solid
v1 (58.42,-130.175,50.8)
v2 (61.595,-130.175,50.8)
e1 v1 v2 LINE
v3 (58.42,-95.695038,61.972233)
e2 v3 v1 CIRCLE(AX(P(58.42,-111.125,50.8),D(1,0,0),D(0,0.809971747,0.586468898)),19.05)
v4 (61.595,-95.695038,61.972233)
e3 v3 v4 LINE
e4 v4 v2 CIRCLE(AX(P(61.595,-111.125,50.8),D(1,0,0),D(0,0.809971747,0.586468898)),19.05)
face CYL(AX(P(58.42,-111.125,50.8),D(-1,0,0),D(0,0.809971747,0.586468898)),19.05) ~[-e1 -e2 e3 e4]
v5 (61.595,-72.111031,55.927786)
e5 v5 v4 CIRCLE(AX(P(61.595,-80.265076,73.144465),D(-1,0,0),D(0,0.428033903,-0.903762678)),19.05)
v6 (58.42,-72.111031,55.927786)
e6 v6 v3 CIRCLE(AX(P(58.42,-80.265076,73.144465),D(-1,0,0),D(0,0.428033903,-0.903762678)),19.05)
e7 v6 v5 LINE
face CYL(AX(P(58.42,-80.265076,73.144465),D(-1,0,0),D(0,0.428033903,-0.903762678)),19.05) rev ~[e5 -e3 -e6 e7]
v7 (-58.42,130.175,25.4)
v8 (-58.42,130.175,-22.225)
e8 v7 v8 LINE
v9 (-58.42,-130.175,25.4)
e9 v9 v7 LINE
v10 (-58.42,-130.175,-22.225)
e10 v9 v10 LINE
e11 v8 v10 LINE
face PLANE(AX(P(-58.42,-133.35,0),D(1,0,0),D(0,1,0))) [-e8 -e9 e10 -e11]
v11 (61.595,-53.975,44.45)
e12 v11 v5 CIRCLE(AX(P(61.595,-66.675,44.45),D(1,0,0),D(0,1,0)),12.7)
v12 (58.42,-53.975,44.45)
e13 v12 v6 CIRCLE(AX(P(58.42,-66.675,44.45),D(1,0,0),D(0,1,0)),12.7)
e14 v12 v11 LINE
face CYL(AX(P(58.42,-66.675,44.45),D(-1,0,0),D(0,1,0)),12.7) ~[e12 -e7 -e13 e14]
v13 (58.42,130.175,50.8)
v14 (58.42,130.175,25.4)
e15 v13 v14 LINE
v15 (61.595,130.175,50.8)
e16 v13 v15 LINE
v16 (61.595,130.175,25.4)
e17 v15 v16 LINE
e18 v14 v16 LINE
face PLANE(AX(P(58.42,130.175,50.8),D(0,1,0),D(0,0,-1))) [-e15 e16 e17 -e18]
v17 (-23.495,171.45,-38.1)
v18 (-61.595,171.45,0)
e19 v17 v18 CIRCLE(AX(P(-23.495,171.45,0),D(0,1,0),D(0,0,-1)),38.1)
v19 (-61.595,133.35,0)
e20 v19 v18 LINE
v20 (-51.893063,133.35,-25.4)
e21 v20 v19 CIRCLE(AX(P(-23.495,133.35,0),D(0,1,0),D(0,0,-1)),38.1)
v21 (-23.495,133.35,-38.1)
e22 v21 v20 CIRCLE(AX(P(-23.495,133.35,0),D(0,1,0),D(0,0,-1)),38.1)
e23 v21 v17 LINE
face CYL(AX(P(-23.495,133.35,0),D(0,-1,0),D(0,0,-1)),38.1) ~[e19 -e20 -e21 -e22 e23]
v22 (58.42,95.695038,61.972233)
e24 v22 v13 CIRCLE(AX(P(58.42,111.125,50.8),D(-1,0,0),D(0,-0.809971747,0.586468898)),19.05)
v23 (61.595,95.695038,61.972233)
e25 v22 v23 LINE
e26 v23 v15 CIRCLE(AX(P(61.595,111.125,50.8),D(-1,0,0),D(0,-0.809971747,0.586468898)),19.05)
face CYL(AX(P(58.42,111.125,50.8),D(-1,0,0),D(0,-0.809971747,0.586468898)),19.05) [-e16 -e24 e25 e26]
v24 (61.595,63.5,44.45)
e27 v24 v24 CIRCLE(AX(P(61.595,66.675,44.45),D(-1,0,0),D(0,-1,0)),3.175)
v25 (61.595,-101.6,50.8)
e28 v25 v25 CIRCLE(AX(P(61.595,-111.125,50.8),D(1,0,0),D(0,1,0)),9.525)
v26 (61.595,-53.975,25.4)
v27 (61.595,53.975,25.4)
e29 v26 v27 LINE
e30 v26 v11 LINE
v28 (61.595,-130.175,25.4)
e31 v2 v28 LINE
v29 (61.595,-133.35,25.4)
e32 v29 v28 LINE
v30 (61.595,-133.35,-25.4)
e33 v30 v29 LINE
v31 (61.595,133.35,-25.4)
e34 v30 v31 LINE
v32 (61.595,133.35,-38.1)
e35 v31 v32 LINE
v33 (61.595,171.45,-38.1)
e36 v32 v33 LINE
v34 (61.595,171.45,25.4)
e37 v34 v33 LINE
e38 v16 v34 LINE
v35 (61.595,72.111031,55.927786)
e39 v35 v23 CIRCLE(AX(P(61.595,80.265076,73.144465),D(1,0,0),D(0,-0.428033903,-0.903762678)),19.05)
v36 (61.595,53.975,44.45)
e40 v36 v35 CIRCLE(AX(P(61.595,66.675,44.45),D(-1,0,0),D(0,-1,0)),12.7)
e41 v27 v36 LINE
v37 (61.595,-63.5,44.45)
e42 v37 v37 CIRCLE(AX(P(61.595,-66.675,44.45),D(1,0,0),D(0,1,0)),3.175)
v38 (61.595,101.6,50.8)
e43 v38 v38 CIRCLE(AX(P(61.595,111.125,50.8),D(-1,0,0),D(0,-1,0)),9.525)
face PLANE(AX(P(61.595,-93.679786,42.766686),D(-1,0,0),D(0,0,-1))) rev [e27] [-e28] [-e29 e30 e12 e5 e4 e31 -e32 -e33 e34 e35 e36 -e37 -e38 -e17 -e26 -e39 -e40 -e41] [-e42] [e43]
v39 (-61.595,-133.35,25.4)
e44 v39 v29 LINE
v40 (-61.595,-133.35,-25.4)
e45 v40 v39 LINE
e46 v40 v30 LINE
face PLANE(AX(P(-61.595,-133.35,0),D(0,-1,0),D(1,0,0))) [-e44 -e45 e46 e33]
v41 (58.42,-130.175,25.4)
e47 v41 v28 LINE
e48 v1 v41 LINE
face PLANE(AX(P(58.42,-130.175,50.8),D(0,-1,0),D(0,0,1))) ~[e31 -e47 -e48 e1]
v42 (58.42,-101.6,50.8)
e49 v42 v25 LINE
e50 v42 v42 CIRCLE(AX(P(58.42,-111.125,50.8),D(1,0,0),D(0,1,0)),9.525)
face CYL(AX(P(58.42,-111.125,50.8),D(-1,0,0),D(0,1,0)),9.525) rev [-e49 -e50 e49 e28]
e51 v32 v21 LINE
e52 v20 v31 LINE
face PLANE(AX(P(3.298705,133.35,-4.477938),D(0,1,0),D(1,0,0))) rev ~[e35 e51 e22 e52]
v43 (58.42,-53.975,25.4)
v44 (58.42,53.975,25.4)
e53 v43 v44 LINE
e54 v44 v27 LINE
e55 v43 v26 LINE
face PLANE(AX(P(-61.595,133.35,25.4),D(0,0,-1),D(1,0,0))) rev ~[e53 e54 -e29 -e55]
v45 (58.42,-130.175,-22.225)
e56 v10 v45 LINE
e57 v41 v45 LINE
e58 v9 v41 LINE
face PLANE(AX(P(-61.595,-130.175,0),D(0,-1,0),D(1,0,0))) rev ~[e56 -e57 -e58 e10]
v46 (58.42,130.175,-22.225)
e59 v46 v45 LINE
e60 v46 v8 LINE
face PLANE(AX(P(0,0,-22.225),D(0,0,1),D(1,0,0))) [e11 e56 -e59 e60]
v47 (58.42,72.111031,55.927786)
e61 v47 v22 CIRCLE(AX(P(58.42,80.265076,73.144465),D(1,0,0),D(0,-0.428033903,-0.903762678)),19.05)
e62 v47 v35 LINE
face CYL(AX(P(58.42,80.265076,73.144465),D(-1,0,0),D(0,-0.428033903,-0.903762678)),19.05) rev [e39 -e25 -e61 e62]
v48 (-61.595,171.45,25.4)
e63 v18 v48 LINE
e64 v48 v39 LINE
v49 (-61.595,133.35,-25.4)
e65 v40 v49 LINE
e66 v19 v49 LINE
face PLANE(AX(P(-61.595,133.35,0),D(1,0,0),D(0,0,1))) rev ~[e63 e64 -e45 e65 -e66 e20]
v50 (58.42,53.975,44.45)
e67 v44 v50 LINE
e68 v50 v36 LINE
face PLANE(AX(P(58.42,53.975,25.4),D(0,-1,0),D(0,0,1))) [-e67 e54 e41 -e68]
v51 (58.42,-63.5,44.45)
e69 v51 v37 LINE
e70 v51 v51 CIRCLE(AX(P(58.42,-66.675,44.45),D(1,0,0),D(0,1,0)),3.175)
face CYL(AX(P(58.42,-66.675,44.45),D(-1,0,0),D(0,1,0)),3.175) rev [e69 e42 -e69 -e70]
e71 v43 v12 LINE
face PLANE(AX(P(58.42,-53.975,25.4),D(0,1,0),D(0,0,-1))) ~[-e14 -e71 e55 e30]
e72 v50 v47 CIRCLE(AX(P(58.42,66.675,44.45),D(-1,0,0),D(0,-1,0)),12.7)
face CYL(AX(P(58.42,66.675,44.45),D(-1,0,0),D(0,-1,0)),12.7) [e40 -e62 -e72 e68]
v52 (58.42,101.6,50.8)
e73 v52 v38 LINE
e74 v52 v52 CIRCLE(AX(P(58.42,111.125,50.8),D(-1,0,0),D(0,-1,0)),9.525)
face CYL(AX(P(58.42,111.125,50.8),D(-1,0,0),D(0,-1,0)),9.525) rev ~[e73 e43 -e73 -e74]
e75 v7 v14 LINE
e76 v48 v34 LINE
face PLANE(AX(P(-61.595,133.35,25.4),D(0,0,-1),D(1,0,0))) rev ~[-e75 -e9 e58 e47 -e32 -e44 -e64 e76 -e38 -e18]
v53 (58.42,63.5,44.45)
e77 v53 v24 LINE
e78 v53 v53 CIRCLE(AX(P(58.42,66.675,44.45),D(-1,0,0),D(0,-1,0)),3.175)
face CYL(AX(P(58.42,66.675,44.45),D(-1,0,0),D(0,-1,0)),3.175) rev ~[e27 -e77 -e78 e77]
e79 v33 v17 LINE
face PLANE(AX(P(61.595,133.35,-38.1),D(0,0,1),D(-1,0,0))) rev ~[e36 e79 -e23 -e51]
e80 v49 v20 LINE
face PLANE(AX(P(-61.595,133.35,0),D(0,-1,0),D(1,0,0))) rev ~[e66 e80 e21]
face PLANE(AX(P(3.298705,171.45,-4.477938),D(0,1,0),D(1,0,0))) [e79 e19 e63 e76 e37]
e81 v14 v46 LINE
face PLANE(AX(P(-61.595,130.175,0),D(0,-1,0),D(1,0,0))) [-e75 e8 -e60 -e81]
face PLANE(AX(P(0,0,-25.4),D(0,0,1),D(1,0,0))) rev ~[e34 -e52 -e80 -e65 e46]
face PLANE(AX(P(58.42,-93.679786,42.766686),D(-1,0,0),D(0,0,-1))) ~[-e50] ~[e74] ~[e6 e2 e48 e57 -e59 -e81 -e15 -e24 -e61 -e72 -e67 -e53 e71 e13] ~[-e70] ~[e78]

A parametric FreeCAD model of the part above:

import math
import FreeCAD as App
import Part
import Sketcher
Q = App.Units.Quantity


def faces_at(feature, points):
    """Names of the faces that lie closest to the given points."""
    faces = feature.Shape.Faces
    near = lambda p: min(range(len(faces)), key=lambda i: faces[i].distToShape(Part.Vertex(*p))[0])
    return sorted({f"Face{near(p) + 1}" for p in points})


def add_polygon(sketch, points):
    """Adds a closed chain of lines whose ends are joined by coincident constraints."""
    first, n = sketch.GeometryCount, len(points)
    for a, b in zip(points, points[1:] + points[:1]):
        sketch.addGeometry(Part.LineSegment(App.Vector(*a, 0), App.Vector(*b, 0)), False)
    for i in range(n):
        sketch.addConstraint(Sketcher.Constraint("Coincident", first + i, 2, first + (i + 1) % n, 1))

doc = App.newDocument("Part")
params = doc.addObject("Spreadsheet::Sheet", "Params")
for row, (alias, value) in enumerate([
    ("sketch1_height", "10.5 in"),
    ("sketch1_width", "4.85 in"),
    ("pad1_length", "2 in"),
    ("thickness_wall", "0.125 in"),
    ("sketch2_radius", "0.5 in"),
    ("sketch2_diameter", "0.25 in"),
    ("sketch2_diameter2", "0.75 in"),
    ("sketch2_width", "3 in"),
    ("sketch2_height", "1 in"),
    ("pad2_length", "0.125 in"),
    ("sketch3_radius", "1.5 in"),
    ("sketch3_height", "1 in"),
    ("sketch3_width", "4.85 in"),
    ("pad3_length", "1.5 in"),
], start=1):
    params.set(f"A{row}", alias)
    params.set(f"B{row}", "=" + value)
    params.setAlias(f"B{row}", alias)

body = doc.addObject("PartDesign::Body", "Body")

# Sketch on XY plane
sketch1 = body.newObject("Sketcher::SketchObject", "Sketch")
sketch1.AttachmentSupport = (doc.getObject("XY_Plane"), [""])
sketch1.MapMode = "FlatFace"
add_polygon(sketch1, [(-62, 133), (-62, -133), (62, -133), (62, 133)])  # lines 0-3
sketch1.addConstraint(Sketcher.Constraint("Vertical", 0))
sketch1.addConstraint(Sketcher.Constraint("Horizontal", 1))
sketch1.addConstraint(Sketcher.Constraint("Vertical", 2))
sketch1.addConstraint(Sketcher.Constraint("Horizontal", 3))
sketch1.addConstraint(Sketcher.Constraint("Symmetric", 0, 2, 2, 2, -1, 1))
sketch1.addConstraint(Sketcher.Constraint("DistanceY", 0, 2, 0, 1, Q("10.5 in")))
sketch1.addConstraint(Sketcher.Constraint("DistanceX", 1, 1, 1, 2, Q("4.85 in")))
sketch1.setExpression("Constraints[9]", "Params.sketch1_height")
sketch1.setExpression("Constraints[10]", "Params.sketch1_width")
pad1 = body.newObject("PartDesign::Pad", "Pad")
pad1.Profile = sketch1
pad1.setExpression("Length", "Params.pad1_length")
pad1.Midplane = True
doc.recompute()

thickness = body.newObject("PartDesign::Thickness", "Thickness")
thickness.Base = (pad1, faces_at(pad1, [(0, 0, 25.4)]))
thickness.setExpression("Value", "Params.thickness_wall")
thickness.Reversed = True
thickness.Join = "Intersection"

# Sketch on YZ plane
sketch2 = body.newObject("Sketcher::SketchObject", "Sketch001")
sketch2.AttachmentSupport = (doc.getObject("YZ_Plane"), [""])
sketch2.MapMode = "FlatFace"
sketch2.AttachmentOffset = App.Placement(App.Vector(0, 0, 2.3 * 25.4), App.Rotation())
sketch2.addGeometry(Part.LineSegment(App.Vector(130.2, 50.8, 0), App.Vector(130.2, 25.4, 0)), False)
sketch2.addGeometry(Part.LineSegment(App.Vector(130.2, 25.4, 0), App.Vector(54, 25.4, 0)), False)
sketch2.addGeometry(Part.LineSegment(App.Vector(54, 25.4, 0), App.Vector(54, 44.5, 0)), False)
sketch2.addGeometry(Part.ArcOfCircle(Part.Circle(App.Vector(66.7, 44.5, 0), App.Vector(0, 0, 1), 12.7), math.radians(65), math.radians(180)), False)
sketch2.addGeometry(Part.ArcOfCircle(Part.Circle(App.Vector(80.3, 73.1, 0), App.Vector(0, 0, 1), 19), math.radians(-115), math.radians(-36)), False)
sketch2.addGeometry(Part.ArcOfCircle(Part.Circle(App.Vector(111.1, 50.8, 0), App.Vector(0, 0, 1), 19.1), math.radians(0), math.radians(144)), False)
sketch2.addGeometry(Part.Circle(App.Vector(66.7, 44.5, 0), App.Vector(0, 0, 1), 3.2), False)
sketch2.addGeometry(Part.Circle(App.Vector(111.1, 50.8, 0), App.Vector(0, 0, 1), 9.5), False)
sketch2.addConstraint(Sketcher.Constraint("Coincident", 0, 2, 1, 1))
sketch2.addConstraint(Sketcher.Constraint("Coincident", 1, 2, 2, 1))
sketch2.addConstraint(Sketcher.Constraint("Tangent", 2, 2, 3, 2))
sketch2.addConstraint(Sketcher.Constraint("Tangent", 3, 1, 4, 1))
sketch2.addConstraint(Sketcher.Constraint("Tangent", 4, 2, 5, 2))
sketch2.addConstraint(Sketcher.Constraint("Tangent", 5, 1, 0, 1))
sketch2.addConstraint(Sketcher.Constraint("Vertical", 0))
sketch2.addConstraint(Sketcher.Constraint("Horizontal", 1))
sketch2.addConstraint(Sketcher.Constraint("Vertical", 2))
sketch2.addConstraint(Sketcher.Constraint("Coincident", 6, 3, 3, 3))
sketch2.addConstraint(Sketcher.Constraint("Coincident", 7, 3, 5, 3))
sketch2.addConstraint(Sketcher.Constraint("Equal", 4, 5))
sketch2.addConstraint(Sketcher.Constraint("Radius", 3, Q("0.5 in")))
sketch2.addConstraint(Sketcher.Constraint("Diameter", 6, Q("0.25 in")))
sketch2.addConstraint(Sketcher.Constraint("Diameter", 7, Q("0.75 in")))
sketch2.addConstraint(Sketcher.Constraint("DistanceX", 1, 2, 1, 1, Q("3 in")))
sketch2.addConstraint(Sketcher.Constraint("DistanceY", 0, 2, 0, 1, Q("1 in")))
sketch2.addConstraint(Sketcher.Constraint("Radius", 4, Q("0.75 in")))
sketch2.addConstraint(Sketcher.Constraint("DistanceY", -1, 1, 5, 3, Q("2 in")))
sketch2.addConstraint(Sketcher.Constraint("DistanceY", 2, 1, 2, 2, Q("0.75 in")))
sketch2.addConstraint(Sketcher.Constraint("DistanceX", -1, 1, 3, 3, Q("2.625 in")))
sketch2.setExpression("Constraints[12]", "Params.sketch2_radius")
sketch2.setExpression("Constraints[13]", "Params.sketch2_diameter")
sketch2.setExpression("Constraints[14]", "Params.sketch2_diameter2")
sketch2.setExpression("Constraints[15]", "Params.sketch2_width")
sketch2.setExpression("Constraints[16]", "Params.sketch2_height")
pad2 = body.newObject("PartDesign::Pad", "Pad001")
pad2.Profile = sketch2
pad2.setExpression("Length", "Params.pad2_length")

# Sketch on XZ plane
sketch3 = body.newObject("Sketcher::SketchObject", "Sketch002")
sketch3.AttachmentSupport = (doc.getObject("XZ_Plane"), [""])
sketch3.MapMode = "FlatFace"
sketch3.AttachmentOffset = App.Placement(App.Vector(0, 0, -5.25 * 25.4), App.Rotation())
sketch3.addGeometry(Part.LineSegment(App.Vector(-62, 25, 0), App.Vector(62, 25, 0)), False)
sketch3.addGeometry(Part.LineSegment(App.Vector(62, 25, 0), App.Vector(62, -38, 0)), False)
sketch3.addGeometry(Part.LineSegment(App.Vector(62, -38, 0), App.Vector(-23, -38, 0)), False)
sketch3.addGeometry(Part.ArcOfCircle(Part.Circle(App.Vector(-23, 0, 0), App.Vector(0, 0, 1), 38), math.radians(-180), math.radians(-90)), False)
sketch3.addGeometry(Part.LineSegment(App.Vector(-62, 0, 0), App.Vector(-62, 25, 0)), False)
sketch3.addConstraint(Sketcher.Constraint("Coincident", 0, 2, 1, 1))
sketch3.addConstraint(Sketcher.Constraint("Coincident", 1, 2, 2, 1))
sketch3.addConstraint(Sketcher.Constraint("Tangent", 2, 2, 3, 2))
sketch3.addConstraint(Sketcher.Constraint("Tangent", 3, 1, 4, 1))
sketch3.addConstraint(Sketcher.Constraint("Coincident", 4, 2, 0, 1))
sketch3.addConstraint(Sketcher.Constraint("Horizontal", 0))
sketch3.addConstraint(Sketcher.Constraint("Vertical", 1))
sketch3.addConstraint(Sketcher.Constraint("Horizontal", 2))
sketch3.addConstraint(Sketcher.Constraint("Vertical", 4))
sketch3.addConstraint(Sketcher.Constraint("PointOnObject", 3, 3, -1))
sketch3.addConstraint(Sketcher.Constraint("Radius", 3, Q("1.5 in")))
sketch3.addConstraint(Sketcher.Constraint("DistanceY", 4, 1, 4, 2, Q("1 in")))
sketch3.addConstraint(Sketcher.Constraint("DistanceX", 0, 1, 0, 2, Q("4.85 in")))
sketch3.addConstraint(Sketcher.Constraint("DistanceX", 3, 3, -1, 1, Q("0.925 in")))
sketch3.setExpression("Constraints[10]", "Params.sketch3_radius")
sketch3.setExpression("Constraints[11]", "Params.sketch3_height")
sketch3.setExpression("Constraints[12]", "Params.sketch3_width")
pad3 = body.newObject("PartDesign::Pad", "Pad002")
pad3.Profile = sketch3
pad3.setExpression("Length", "Params.pad3_length")
pad3.Reversed = True
doc.recompute()

mirrored = body.newObject("PartDesign::Mirrored", "Mirrored")
mirrored.Originals = [pad2]
mirrored.MirrorPlane = (doc.getObject("XZ_Plane"), [""])
body.Tip = mirrored

doc.recompute()
